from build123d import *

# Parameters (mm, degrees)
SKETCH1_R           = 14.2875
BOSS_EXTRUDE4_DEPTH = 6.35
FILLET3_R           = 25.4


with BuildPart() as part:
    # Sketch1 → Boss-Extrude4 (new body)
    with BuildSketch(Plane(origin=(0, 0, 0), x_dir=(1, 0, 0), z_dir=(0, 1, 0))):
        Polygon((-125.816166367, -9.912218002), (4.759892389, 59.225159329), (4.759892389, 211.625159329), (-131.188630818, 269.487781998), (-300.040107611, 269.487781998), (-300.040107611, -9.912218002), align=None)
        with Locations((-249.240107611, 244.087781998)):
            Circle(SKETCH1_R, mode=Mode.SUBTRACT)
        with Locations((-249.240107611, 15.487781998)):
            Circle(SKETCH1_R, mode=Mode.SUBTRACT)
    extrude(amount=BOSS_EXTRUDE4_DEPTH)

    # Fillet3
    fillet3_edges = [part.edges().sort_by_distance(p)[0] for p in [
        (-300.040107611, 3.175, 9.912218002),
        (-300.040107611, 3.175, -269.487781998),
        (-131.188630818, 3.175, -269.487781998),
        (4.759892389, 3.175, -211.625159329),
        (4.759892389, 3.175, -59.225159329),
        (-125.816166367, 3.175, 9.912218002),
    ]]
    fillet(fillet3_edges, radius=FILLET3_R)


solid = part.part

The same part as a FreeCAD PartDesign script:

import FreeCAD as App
import Part
import Sketcher
from FreeCAD import Vector
Q = App.Units.Quantity


def edges_at(feature, points):
    """Names of the edges that pass closest to the given points."""
    edges = feature.Shape.Edges
    near = lambda p: min(range(len(edges)), key=lambda i: edges[i].distToShape(Part.Vertex(*p))[0])
    return sorted({f"Edge{near(p) + 1}" for p in points})

doc = App.newDocument("Part")
body = doc.addObject("PartDesign::Body", "Body")

sketch1 = body.newObject("Sketcher::SketchObject", "Sketch")
sketch1.AttachmentSupport = (doc.getObject("XZ_Plane"), [""])
sketch1.MapMode = "FlatFace"
sketch1.addGeometry([
    Part.LineSegment(Vector(-125.816166, 9.912218, 0), Vector(4.759892, -59.225159, 0)),
    Part.LineSegment(Vector(4.759892, -59.225159, 0), Vector(4.759892, -211.625159, 0)),
    Part.LineSegment(Vector(4.759892, -211.625159, 0), Vector(-131.188631, -269.487782, 0)),
    Part.LineSegment(Vector(-131.188631, -269.487782, 0), Vector(-300.040108, -269.487782, 0)),
    Part.LineSegment(Vector(-300.040108, -269.487782, 0), Vector(-300.040108, 9.912218, 0)),
    Part.LineSegment(Vector(-300.040108, 9.912218, 0), Vector(-125.816166, 9.912218, 0)),
    Part.Circle(Vector(-249.240108, -15.487782, 0), Vector(0, 0, 1), 14.2875),
    Part.Circle(Vector(-249.240108, -244.087782, 0), Vector(0, 0, 1), 14.2875),
], False)
sketch1.addConstraint([
    Sketcher.Constraint("Coincident", 0, 2, 1, 1),
    Sketcher.Constraint("Coincident", 1, 2, 2, 1),
    Sketcher.Constraint("Coincident", 2, 2, 3, 1),
    Sketcher.Constraint("Coincident", 3, 2, 4, 1),
    Sketcher.Constraint("Coincident", 4, 2, 5, 1),
    Sketcher.Constraint("Coincident", 5, 2, 0, 1),
    Sketcher.Constraint("Vertical", 1),
    Sketcher.Constraint("Horizontal", 3),
    Sketcher.Constraint("Vertical", 4),
    Sketcher.Constraint("Horizontal", 5),
    Sketcher.Constraint("Equal", 6, 7),
    Sketcher.Constraint("Vertical", 6, 3, 7, 3),
    Sketcher.Constraint("Equal", 0, 2),
    Sketcher.Constraint("DistanceY", 1, 2, 1, 1, Q("6 in")),
    Sketcher.Constraint("DistanceY", 4, 1, 4, 2, Q("11 in")),
    Sketcher.Constraint("Diameter", 6, Q("1.125 in")),
    Sketcher.Constraint("DistanceY", 7, 3, 6, 3, Q("9 in")),
    Sketcher.Constraint("DistanceX", 6, 3, 0, 2, Q("10 in")),
    Sketcher.Constraint("DistanceY", 2, 2, 7, 3, Q("1 in")),
    Sketcher.Constraint("DistanceX", 3, 2, 7, 3, Q("2 in")),
    Sketcher.Constraint("DistanceX", 5, 1, 5, 2, 174.223941),
    Sketcher.Constraint("DistanceX", 3, 2, 3, 1, 168.851477),
    Sketcher.Constraint("DistanceY", 6, 3, -1, 1, 15.487782),
    Sketcher.Constraint("DistanceX", 2, 2, -1, 1, 131.188631),
])
pad1 = body.newObject("PartDesign::Pad", "Pad")
pad1.Profile = sketch1
pad1.Length = Q("0.25 in")
pad1.Reversed = True
doc.recompute()

fillet = body.newObject("PartDesign::Fillet", "Fillet")
fillet.Base = (pad1, edges_at(pad1, [
    (-300.04, 3.175, 9.912),
    (-300.04, 3.175, -269.488),
    (-131.189, 3.175, -269.488),
    (4.76, 3.175, -211.625),
    (4.76, 3.175, -59.225),
    (-125.816, 3.175, 9.912),
]))
fillet.Radius = Q("1 in")

doc.recompute()
